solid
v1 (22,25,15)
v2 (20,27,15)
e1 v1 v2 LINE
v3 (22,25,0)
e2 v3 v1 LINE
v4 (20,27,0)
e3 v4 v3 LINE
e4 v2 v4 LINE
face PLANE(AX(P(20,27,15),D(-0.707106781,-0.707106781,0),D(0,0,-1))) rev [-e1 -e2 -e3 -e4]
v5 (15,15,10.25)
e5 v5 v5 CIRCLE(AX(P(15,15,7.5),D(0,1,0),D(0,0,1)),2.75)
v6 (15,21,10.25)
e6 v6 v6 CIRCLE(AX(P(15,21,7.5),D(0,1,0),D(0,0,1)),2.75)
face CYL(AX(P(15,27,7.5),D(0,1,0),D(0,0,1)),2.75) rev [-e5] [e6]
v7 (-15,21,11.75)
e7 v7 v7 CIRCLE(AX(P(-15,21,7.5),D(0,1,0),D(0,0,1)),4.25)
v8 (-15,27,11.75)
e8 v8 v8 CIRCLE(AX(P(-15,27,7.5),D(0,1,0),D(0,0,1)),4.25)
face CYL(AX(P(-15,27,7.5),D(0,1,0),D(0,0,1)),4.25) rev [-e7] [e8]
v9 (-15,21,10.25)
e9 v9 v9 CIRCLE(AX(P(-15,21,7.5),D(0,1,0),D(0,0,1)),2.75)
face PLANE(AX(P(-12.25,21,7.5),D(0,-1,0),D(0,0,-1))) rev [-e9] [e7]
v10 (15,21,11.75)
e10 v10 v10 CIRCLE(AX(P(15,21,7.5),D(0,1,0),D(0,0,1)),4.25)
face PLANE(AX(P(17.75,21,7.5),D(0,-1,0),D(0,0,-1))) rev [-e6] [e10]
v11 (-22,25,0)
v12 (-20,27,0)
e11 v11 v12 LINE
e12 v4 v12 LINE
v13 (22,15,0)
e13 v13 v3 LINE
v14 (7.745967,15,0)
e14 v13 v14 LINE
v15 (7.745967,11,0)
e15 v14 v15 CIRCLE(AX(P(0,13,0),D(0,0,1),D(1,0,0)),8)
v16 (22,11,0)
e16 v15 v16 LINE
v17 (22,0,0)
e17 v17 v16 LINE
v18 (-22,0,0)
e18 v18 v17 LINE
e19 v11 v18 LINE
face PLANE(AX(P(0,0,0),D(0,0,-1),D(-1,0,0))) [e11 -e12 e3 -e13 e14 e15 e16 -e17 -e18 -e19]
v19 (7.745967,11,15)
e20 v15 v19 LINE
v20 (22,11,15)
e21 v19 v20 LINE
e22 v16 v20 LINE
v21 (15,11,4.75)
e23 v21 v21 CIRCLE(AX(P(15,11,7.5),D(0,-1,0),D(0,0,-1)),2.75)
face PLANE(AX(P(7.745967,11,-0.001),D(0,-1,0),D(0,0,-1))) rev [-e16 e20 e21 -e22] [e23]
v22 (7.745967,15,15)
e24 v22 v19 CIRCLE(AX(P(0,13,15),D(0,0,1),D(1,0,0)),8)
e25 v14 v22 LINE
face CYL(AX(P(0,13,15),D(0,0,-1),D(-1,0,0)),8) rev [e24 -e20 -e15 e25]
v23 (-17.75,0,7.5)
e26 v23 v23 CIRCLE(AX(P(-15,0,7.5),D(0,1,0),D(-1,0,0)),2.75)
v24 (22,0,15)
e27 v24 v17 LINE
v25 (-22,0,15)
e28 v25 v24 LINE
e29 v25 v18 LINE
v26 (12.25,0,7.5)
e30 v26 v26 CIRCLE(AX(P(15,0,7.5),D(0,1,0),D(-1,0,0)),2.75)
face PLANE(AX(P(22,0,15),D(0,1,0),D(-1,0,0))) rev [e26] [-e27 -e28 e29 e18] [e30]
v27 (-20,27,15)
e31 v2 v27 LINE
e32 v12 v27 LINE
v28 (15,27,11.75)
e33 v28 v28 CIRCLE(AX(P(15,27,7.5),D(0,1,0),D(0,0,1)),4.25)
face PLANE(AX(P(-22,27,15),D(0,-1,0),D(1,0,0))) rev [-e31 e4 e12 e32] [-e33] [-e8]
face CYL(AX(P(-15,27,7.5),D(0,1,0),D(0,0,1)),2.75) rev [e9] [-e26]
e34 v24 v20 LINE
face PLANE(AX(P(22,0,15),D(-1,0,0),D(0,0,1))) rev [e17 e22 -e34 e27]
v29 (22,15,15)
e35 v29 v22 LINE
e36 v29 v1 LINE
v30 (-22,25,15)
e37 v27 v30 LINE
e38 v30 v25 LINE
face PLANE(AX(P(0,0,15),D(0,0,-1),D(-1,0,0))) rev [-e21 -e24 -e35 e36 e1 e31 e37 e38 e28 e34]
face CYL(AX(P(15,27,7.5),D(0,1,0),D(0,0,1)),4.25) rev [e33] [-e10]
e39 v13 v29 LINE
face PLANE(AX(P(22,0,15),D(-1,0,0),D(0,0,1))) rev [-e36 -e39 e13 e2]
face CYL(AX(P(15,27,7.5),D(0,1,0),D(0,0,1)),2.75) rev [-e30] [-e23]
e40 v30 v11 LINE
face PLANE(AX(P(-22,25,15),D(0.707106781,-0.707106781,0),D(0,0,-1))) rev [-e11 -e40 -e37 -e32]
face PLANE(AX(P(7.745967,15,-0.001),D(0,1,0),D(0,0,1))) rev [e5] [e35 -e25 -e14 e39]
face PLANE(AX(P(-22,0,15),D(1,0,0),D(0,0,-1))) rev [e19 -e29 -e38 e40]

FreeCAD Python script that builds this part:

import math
import FreeCAD as App
import Part
import Sketcher
Q = App.Units.Quantity


def edges_at(feature, points):
    """Names of the edges that pass closest to the given points."""
    edges = feature.Shape.Edges
    near = lambda p: min(range(len(edges)), key=lambda i: edges[i].distToShape(Part.Vertex(*p))[0])
    return sorted({f"Edge{near(p) + 1}" for p in points})


def add_polygon(sketch, points):
    """Adds a closed chain of lines whose ends are joined by coincident constraints."""
    first, n = sketch.GeometryCount, len(points)
    for a, b in zip(points, points[1:] + points[:1]):
        sketch.addGeometry(Part.LineSegment(App.Vector(*a, 0), App.Vector(*b, 0)), False)
    for i in range(n):
        sketch.addConstraint(Sketcher.Constraint("Coincident", first + i, 2, first + (i + 1) % n, 1))

doc = App.newDocument("Part")
body = doc.addObject("PartDesign::Body", "Body")

# Sketch on XY plane
sketch1 = doc.addObject("Sketcher::SketchObject", "Sketch")
body.addObject(sketch1)
sketch1.AttachmentSupport = (doc.XY_Plane, [""])
sketch1.MapMode = "FlatFace"
add_polygon(sketch1, [(-22, 27), (-22, 0), (22, 0), (22, 27)])  # lines 0-3
sketch1.addGeometry(Part.Circle(App.Vector(0, 13, 0), App.Vector(0, 0, 1), 8), False)  # 4
sketch1.addConstraint([
    Sketcher.Constraint("Vertical", 0),
    Sketcher.Constraint("Horizontal", 1),
    Sketcher.Constraint("Vertical", 2),
    Sketcher.Constraint("Horizontal", 3),
    Sketcher.Constraint("Symmetric", 0, 2, 1, 2, -1, 1),
    Sketcher.Constraint("PointOnObject", 4, 3, -2),
    Sketcher.Constraint("Diameter", 4, Q("16 mm")),
    Sketcher.Constraint("DistanceX", 1, 1, 1, 2, Q("44 mm")),
    Sketcher.Constraint("DistanceY", 0, 2, 0, 1, Q("27 mm")),
    Sketcher.Constraint("DistanceY", -1, 1, 4, 3, Q("13 mm")),
])
pad1 = doc.addObject("PartDesign::Pad", "Pad")
body.addObject(pad1)
pad1.Profile = sketch1
pad1.Length = 15

# Sketch on XZ plane
sketch2 = doc.addObject("Sketcher::SketchObject", "Sketch001")
body.addObject(sketch2)
sketch2.AttachmentSupport = (doc.XZ_Plane, [""])
sketch2.MapMode = "FlatFace"
sketch2.AttachmentOffset = App.Placement(App.Vector(0, 0, -27), App.Rotation())
sketch2.addGeometry([
    Part.Circle(App.Vector(-15, 7.5, 0), App.Vector(0, 0, 1), 2.8),
    Part.Circle(App.Vector(15, 7.5, 0), App.Vector(0, 0, 1), 2.8),
], False)
sketch2.addConstraint([
    Sketcher.Constraint("Equal", 0, 1),
    Sketcher.Constraint("Symmetric", 0, 3, 1, 3, -2),
    Sketcher.Constraint("Diameter", 0, Q("5.5 mm")),
    Sketcher.Constraint("DistanceX", 0, 3, -1, 1, Q("15 mm")),
    Sketcher.Constraint("DistanceY", -1, 1, 0, 3, Q("7.5 mm")),
])
doc.recompute()
hole = doc.addObject("PartDesign::Hole", "Hole")
body.addObject(hole)
hole.Profile = sketch2
hole.ThreadType = "None"
hole.Diameter = 5.5
hole.DepthType = "Dimension"
hole.Depth = 27
hole.DrillPoint = "Flat"
hole.HoleCutType = "Counterbore"
hole.HoleCutDiameter = 8.5
hole.HoleCutDepth = 6
hole.Reversed = True
doc.recompute()

chamfer = doc.addObject("PartDesign::Chamfer", "Chamfer")
body.addObject(chamfer)
chamfer.Base = (hole, edges_at(hole, [(-22, 27, 7.5), (22, 27, 7.5)]))
chamfer.Size = 2

# Sketch on XY plane
sketch3 = doc.addObject("Sketcher::SketchObject", "Sketch002")
body.addObject(sketch3)
sketch3.AttachmentSupport = (doc.XY_Plane, [""])
sketch3.MapMode = "FlatFace"
sketch3.AttachmentOffset = App.Placement(App.Vector(0, 0, 15), App.Rotation())
sketch3.addGeometry([
    Part.LineSegment(App.Vector(22, 15, 0), App.Vector(7.7, 15, 0)),
    Part.ArcOfCircle(Part.Circle(App.Vector(0, 13, 0), App.Vector(0, 0, 1), 8), math.radians(-14), math.radians(14)),
    Part.LineSegment(App.Vector(7.7, 11, 0), App.Vector(22, 11, 0)),
    Part.LineSegment(App.Vector(22, 11, 0), App.Vector(22, 15, 0)),
], False)
sketch3.addConstraint([
    Sketcher.Constraint("Coincident", 0, 2, 1, 2),
    Sketcher.Constraint("Coincident", 1, 1, 2, 1),
    Sketcher.Constraint("Coincident", 2, 2, 3, 1),
    Sketcher.Constraint("Coincident", 3, 2, 0, 1),
    Sketcher.Constraint("Horizontal", 0),
    Sketcher.Constraint("Horizontal", 2),
    Sketcher.Constraint("Vertical", 3),
    Sketcher.Constraint("PointOnObject", 1, 3, -2),
    Sketcher.Constraint("Vertical", 0, 2, 1, 1),
    Sketcher.Constraint("Radius", 1, Q("8 mm")),
    Sketcher.Constraint("DistanceY", 3, 1, 3, 2, Q("4 mm")),
    Sketcher.Constraint("DistanceY", -1, 1, 1, 3, Q("13 mm")),
    Sketcher.Constraint("DistanceX", -1, 1, 2, 2, Q("22 mm")),
])
pocket1 = doc.addObject("PartDesign::Pocket", "Pocket")
body.addObject(pocket1)
pocket1.Profile = sketch3
pocket1.Type = "UpToFirst"

doc.recompute()
